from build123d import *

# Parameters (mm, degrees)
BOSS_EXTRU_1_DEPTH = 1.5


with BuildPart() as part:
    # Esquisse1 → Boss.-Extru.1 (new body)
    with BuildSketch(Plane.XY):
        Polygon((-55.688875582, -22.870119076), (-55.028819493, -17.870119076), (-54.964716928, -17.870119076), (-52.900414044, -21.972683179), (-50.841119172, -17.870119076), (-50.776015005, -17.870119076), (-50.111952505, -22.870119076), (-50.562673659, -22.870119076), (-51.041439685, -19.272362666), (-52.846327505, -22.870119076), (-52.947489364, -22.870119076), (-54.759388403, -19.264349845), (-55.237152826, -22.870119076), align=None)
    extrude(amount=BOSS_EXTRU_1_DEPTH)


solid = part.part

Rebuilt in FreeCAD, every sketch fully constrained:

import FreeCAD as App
import Part
import Sketcher
from FreeCAD import Vector
Q = App.Units.Quantity


def add_polygon(sketch, points):
    """Adds a closed chain of lines whose ends are joined by coincident constraints."""
    first, n = sketch.GeometryCount, len(points)
    for a, b in zip(points, points[1:] + points[:1]):
        sketch.addGeometry(Part.LineSegment(App.Vector(*a, 0), App.Vector(*b, 0)), False)
    for i in range(n):
        sketch.addConstraint(Sketcher.Constraint("Coincident", first + i, 2, first + (i + 1) % n, 1))

doc = App.newDocument("Part")
body = doc.addObject("PartDesign::Body", "Body")

# Sketch on XY plane
sketch1 = body.newObject("Sketcher::SketchObject", "Sketch")
sketch1.AttachmentSupport = (doc.getObject("XY_Plane"), [""])
sketch1.MapMode = "FlatFace"
add_polygon(sketch1, [(-55.028819, -17.870119), (-55.688876, -22.870119), (-55.237153, -22.870119), (-54.759388, -19.26435), (-52.947489, -22.870119), (-52.846328, -22.870119), (-51.04144, -19.272363), (-50.562674, -22.870119), (-50.111953, -22.870119), (-50.776015, -17.870119), (-50.841119, -17.870119), (-52.900414, -21.972683), (-54.964717, -17.870119)])  # lines 0-12
sketch1.addConstraint(Sketcher.Constraint("Horizontal", 1))
sketch1.addConstraint(Sketcher.Constraint("Horizontal", 4))
sketch1.addConstraint(Sketcher.Constraint("Horizontal", 7))
sketch1.addConstraint(Sketcher.Constraint("Horizontal", 9))
sketch1.addConstraint(Sketcher.Constraint("Horizontal", 12))
sketch1.addConstraint(Sketcher.Constraint("DistanceY", 6, 2, 8, 2, Q("5 mm")))
sketch1.addConstraint(Sketcher.Constraint("DistanceY", 4, 2, 8, 2, Q("5 mm")))
sketch1.addConstraint(Sketcher.Constraint("DistanceX", 4, 1, 4, 2, Q("0.101162 mm")))
sketch1.addConstraint(Sketcher.Constraint("DistanceX", 7, 1, 7, 2, Q("0.450721 mm")))
sketch1.addConstraint(Sketcher.Constraint("DistanceX", 2, 2, 3, 2, Q("1.811899 mm")))
sketch1.addConstraint(Sketcher.Constraint("DistanceX", 0, 2, 6, 2, Q("5.126202 mm")))
sketch1.addConstraint(Sketcher.Constraint("DistanceX", 1, 2, 7, 2, Q("5.1252 mm")))
sketch1.addConstraint(Sketcher.Constraint("DistanceX", 11, 2, 8, 2, Q("4.188702 mm")))
sketch1.addConstraint(Sketcher.Constraint("DistanceX", 12, 2, 9, 2, Q("4.1877 mm")))
sketch1.addConstraint(Sketcher.Constraint("Distance", 0, Q("5.043379 mm")))
sketch1.addConstraint(Sketcher.Constraint("Distance", 3, Q("4.035412 mm")))
sketch1.addConstraint(Sketcher.Constraint("DistanceX", 9, 2, 9, 1, Q("0.065104 mm")))
sketch1.addConstraint(Sketcher.Constraint("DistanceY", 0, 2, -1, 1, Q("22.870119 mm")))
sketch1.addConstraint(Sketcher.Constraint("DistanceX", 2, 2, -1, 1, Q("54.759388 mm")))
sketch1.addConstraint(Sketcher.Constraint("DistanceY", 2, 2, -1, 1, Q("19.26435 mm")))
sketch1.addConstraint(Sketcher.Constraint("DistanceX", 5, 2, -1, 1, Q("51.04144 mm")))
sketch1.addConstraint(Sketcher.Constraint("DistanceX", 9, 2, -1, 1, Q("50.841119 mm")))
sketch1.addConstraint(Sketcher.Constraint("DistanceY", 11, 2, -1, 1, Q("17.870119 mm")))
sketch1.addConstraint(Sketcher.Constraint("DistanceX", 1, 2, 10, 2, Q("2.336739 mm")))
sketch1.addConstraint(Sketcher.Constraint("Distance", 5, Q("4.025105 mm")))
sketch1.addConstraint(Sketcher.Constraint("Distance", 10, Q("4.590395 mm")))
pad1 = body.newObject("PartDesign::Pad", "Pad")
pad1.Profile = sketch1
pad1.Length = 1.5

doc.recompute()
